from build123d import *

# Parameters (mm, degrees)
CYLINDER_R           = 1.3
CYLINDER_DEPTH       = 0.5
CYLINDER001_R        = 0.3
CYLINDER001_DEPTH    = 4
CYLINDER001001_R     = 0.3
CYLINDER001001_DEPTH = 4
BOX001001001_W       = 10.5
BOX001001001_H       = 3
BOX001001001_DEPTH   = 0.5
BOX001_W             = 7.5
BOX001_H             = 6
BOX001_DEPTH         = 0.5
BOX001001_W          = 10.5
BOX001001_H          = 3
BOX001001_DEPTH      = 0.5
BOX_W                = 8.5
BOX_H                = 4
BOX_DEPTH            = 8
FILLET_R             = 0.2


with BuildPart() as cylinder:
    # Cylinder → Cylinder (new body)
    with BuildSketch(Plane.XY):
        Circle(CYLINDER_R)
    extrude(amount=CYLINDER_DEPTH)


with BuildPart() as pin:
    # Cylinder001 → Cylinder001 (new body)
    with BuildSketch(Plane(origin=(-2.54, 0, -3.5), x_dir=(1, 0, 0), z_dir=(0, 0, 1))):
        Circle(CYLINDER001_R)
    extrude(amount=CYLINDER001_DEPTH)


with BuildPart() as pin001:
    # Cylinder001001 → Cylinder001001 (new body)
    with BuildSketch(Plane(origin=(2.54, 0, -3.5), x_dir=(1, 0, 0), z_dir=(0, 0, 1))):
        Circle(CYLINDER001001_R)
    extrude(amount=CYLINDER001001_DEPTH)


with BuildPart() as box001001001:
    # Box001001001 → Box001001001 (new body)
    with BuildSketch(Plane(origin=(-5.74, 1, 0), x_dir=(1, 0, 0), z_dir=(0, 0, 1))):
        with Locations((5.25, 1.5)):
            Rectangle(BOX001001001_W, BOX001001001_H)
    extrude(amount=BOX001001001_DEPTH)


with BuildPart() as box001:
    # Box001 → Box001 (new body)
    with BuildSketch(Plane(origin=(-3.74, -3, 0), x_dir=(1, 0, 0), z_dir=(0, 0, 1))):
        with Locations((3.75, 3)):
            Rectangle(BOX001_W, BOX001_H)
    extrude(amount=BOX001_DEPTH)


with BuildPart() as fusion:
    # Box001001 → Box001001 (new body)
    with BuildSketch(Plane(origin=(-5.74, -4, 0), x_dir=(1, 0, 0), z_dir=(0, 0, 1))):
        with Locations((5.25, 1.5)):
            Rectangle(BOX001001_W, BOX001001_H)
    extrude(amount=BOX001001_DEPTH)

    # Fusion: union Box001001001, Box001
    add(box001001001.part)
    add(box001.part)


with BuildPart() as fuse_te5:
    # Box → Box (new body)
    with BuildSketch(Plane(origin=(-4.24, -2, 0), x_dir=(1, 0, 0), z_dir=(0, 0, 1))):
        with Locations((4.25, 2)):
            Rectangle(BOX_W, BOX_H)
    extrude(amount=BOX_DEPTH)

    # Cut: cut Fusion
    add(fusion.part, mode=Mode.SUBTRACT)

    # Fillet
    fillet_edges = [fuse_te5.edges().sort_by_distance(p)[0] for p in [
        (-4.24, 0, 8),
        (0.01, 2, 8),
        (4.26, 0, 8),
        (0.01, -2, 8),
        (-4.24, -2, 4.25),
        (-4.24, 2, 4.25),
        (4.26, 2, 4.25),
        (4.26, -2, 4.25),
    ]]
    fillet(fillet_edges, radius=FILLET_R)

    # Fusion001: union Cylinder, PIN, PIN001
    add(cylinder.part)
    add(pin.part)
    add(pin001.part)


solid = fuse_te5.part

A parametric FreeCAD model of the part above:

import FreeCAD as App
import Part
import Sketcher
from FreeCAD import Vector


def edges_at(feature, points):
    """Names of the edges that pass closest to the given points."""
    edges = feature.Shape.Edges
    near = lambda p: min(range(len(edges)), key=lambda i: edges[i].distToShape(Part.Vertex(*p))[0])
    return sorted({f"Edge{near(p) + 1}" for p in points})

doc = App.newDocument("Part")
body = doc.addObject("PartDesign::Body", "Body")

sketch1 = body.newObject("Sketcher::SketchObject", "Sketch")
sketch1.AttachmentSupport = (doc.getObject("XY_Plane"), [""])
sketch1.MapMode = "FlatFace"
sketch1.addGeometry(Part.Circle(Vector(0, 0, 0), Vector(0, 0, 1), 1.3), False)
sketch1.addConstraint([
    Sketcher.Constraint("Coincident", 0, 3, -1, 1),
    Sketcher.Constraint("Diameter", 0, 2.6),
])
pad1 = body.newObject("PartDesign::Pad", "Pad")
pad1.Profile = sketch1
pad1.Length = 0.5
body2 = doc.addObject("PartDesign::Body", "Body001")

sketch2 = body2.newObject("Sketcher::SketchObject", "Sketch001")
sketch2.AttachmentSupport = (doc.getObject("XY_Plane001"), [""])
sketch2.MapMode = "FlatFace"
sketch2.AttachmentOffset = App.Placement(Vector(0, 0, -3.5), App.Rotation())
sketch2.addGeometry(Part.Circle(Vector(-2.54, 0, 0), Vector(0, 0, 1), 0.3), False)
sketch2.addConstraint([
    Sketcher.Constraint("PointOnObject", 0, 3, -1),
    Sketcher.Constraint("Diameter", 0, 0.6),
    Sketcher.Constraint("DistanceX", 0, 3, -1, 1, 2.54),
])
pad2 = body2.newObject("PartDesign::Pad", "Pad001")
pad2.Profile = sketch2
pad2.Length = 4
body3 = doc.addObject("PartDesign::Body", "Body002")

sketch3 = body3.newObject("Sketcher::SketchObject", "Sketch002")
sketch3.AttachmentSupport = (doc.getObject("XY_Plane002"), [""])
sketch3.MapMode = "FlatFace"
sketch3.AttachmentOffset = App.Placement(Vector(0, 0, -3.5), App.Rotation())
sketch3.addGeometry(Part.Circle(Vector(2.54, 0, 0), Vector(0, 0, 1), 0.3), False)
sketch3.addConstraint([
    Sketcher.Constraint("PointOnObject", 0, 3, -1),
    Sketcher.Constraint("Diameter", 0, 0.6),
    Sketcher.Constraint("DistanceX", -1, 1, 0, 3, 2.54),
])
pad3 = body3.newObject("PartDesign::Pad", "Pad002")
pad3.Profile = sketch3
pad3.Length = 4
body4 = doc.addObject("PartDesign::Body", "Body003")

sketch4 = body4.newObject("Sketcher::SketchObject", "Sketch003")
sketch4.AttachmentSupport = (doc.getObject("XY_Plane003"), [""])
sketch4.MapMode = "FlatFace"
sketch4.addGeometry([
    Part.LineSegment(Vector(-5.7, 4, 0), Vector(-5.7, 1, 0)),
    Part.LineSegment(Vector(-5.7, 1, 0), Vector(4.8, 1, 0)),
    Part.LineSegment(Vector(4.8, 1, 0), Vector(4.8, 4, 0)),
    Part.LineSegment(Vector(4.8, 4, 0), Vector(-5.7, 4, 0)),
], False)
sketch4.addConstraint([
    Sketcher.Constraint("Coincident", 0, 2, 1, 1),
    Sketcher.Constraint("Coincident", 1, 2, 2, 1),
    Sketcher.Constraint("Coincident", 2, 2, 3, 1),
    Sketcher.Constraint("Coincident", 3, 2, 0, 1),
    Sketcher.Constraint("Vertical", 0),
    Sketcher.Constraint("Horizontal", 1),
    Sketcher.Constraint("Vertical", 2),
    Sketcher.Constraint("Horizontal", 3),
    Sketcher.Constraint("DistanceY", 0, 2, 0, 1, 3.0),
    Sketcher.Constraint("DistanceX", 1, 1, 1, 2, 10.5),
    Sketcher.Constraint("DistanceY", -1, 1, 0, 2, 1.0),
    Sketcher.Constraint("DistanceX", 0, 2, -1, 1, 5.74),
])
pad4 = body4.newObject("PartDesign::Pad", "Pad003")
pad4.Profile = sketch4
pad4.Length = 0.5
body5 = doc.addObject("PartDesign::Body", "Body004")

sketch5 = body5.newObject("Sketcher::SketchObject", "Sketch004")
sketch5.AttachmentSupport = (doc.getObject("XY_Plane004"), [""])
sketch5.MapMode = "FlatFace"
sketch5.addGeometry([
    Part.LineSegment(Vector(-4, 3, 0), Vector(-4, -3, 0)),
    Part.LineSegment(Vector(-4, -3, 0), Vector(4, -3, 0)),
    Part.LineSegment(Vector(4, -3, 0), Vector(4, 3, 0)),
    Part.LineSegment(Vector(4, 3, 0), Vector(-4, 3, 0)),
], False)
sketch5.addConstraint([
    Sketcher.Constraint("Coincident", 0, 2, 1, 1),
    Sketcher.Constraint("Coincident", 1, 2, 2, 1),
    Sketcher.Constraint("Coincident", 2, 2, 3, 1),
    Sketcher.Constraint("Coincident", 3, 2, 0, 1),
    Sketcher.Constraint("Vertical", 0),
    Sketcher.Constraint("Horizontal", 1),
    Sketcher.Constraint("Vertical", 2),
    Sketcher.Constraint("Horizontal", 3),
    Sketcher.Constraint("DistanceY", 0, 2, 0, 1, 6.0),
    Sketcher.Constraint("DistanceX", 1, 1, 1, 2, 7.5),
    Sketcher.Constraint("DistanceY", 0, 2, -1, 1, 3.0),
    Sketcher.Constraint("DistanceX", 0, 2, -1, 1, 3.74),
])
pad5 = body5.newObject("PartDesign::Pad", "Pad004")
pad5.Profile = sketch5
pad5.Length = 0.5
body6 = doc.addObject("PartDesign::Body", "Body005")
body6.AllowCompound = True

sketch6 = body6.newObject("Sketcher::SketchObject", "Sketch005")
sketch6.AttachmentSupport = (doc.getObject("XY_Plane005"), [""])
sketch6.MapMode = "FlatFace"
sketch6.addGeometry([
    Part.LineSegment(Vector(-5.7, -1, 0), Vector(-5.7, -4, 0)),
    Part.LineSegment(Vector(-5.7, -4, 0), Vector(4.8, -4, 0)),
    Part.LineSegment(Vector(4.8, -4, 0), Vector(4.8, -1, 0)),
    Part.LineSegment(Vector(4.8, -1, 0), Vector(-5.7, -1, 0)),
], False)
sketch6.addConstraint([
    Sketcher.Constraint("Coincident", 0, 2, 1, 1),
    Sketcher.Constraint("Coincident", 1, 2, 2, 1),
    Sketcher.Constraint("Coincident", 2, 2, 3, 1),
    Sketcher.Constraint("Coincident", 3, 2, 0, 1),
    Sketcher.Constraint("Vertical", 0),
    Sketcher.Constraint("Horizontal", 1),
    Sketcher.Constraint("Vertical", 2),
    Sketcher.Constraint("Horizontal", 3),
    Sketcher.Constraint("DistanceY", 0, 2, 0, 1, 3.0),
    Sketcher.Constraint("DistanceX", 1, 1, 1, 2, 10.5),
    Sketcher.Constraint("DistanceY", 0, 2, -1, 1, 4.0),
    Sketcher.Constraint("DistanceX", 0, 2, -1, 1, 5.74),
])
pad6 = body6.newObject("PartDesign::Pad", "Pad005")
pad6.Profile = sketch6
pad6.Length = 0.5
doc.recompute()

boolean = body6.newObject("PartDesign::Boolean", "Boolean")
boolean.Type = "Fuse"
boolean.addObjects([body4])
doc.recompute()

boolean2 = body6.newObject("PartDesign::Boolean", "Boolean001")
boolean2.Type = "Fuse"
boolean2.addObjects([body5])
body7 = doc.addObject("PartDesign::Body", "Body006")

sketch7 = body7.newObject("Sketcher::SketchObject", "Sketch006")
sketch7.AttachmentSupport = (doc.getObject("XY_Plane006"), [""])
sketch7.MapMode = "FlatFace"
sketch7.addGeometry([
    Part.LineSegment(Vector(-4.2, 2, 0), Vector(-4.2, -2, 0)),
    Part.LineSegment(Vector(-4.2, -2, 0), Vector(4.3, -2, 0)),
    Part.LineSegment(Vector(4.3, -2, 0), Vector(4.3, 2, 0)),
    Part.LineSegment(Vector(4.3, 2, 0), Vector(-4.2, 2, 0)),
], False)
sketch7.addConstraint([
    Sketcher.Constraint("Coincident", 0, 2, 1, 1),
    Sketcher.Constraint("Coincident", 1, 2, 2, 1),
    Sketcher.Constraint("Coincident", 2, 2, 3, 1),
    Sketcher.Constraint("Coincident", 3, 2, 0, 1),
    Sketcher.Constraint("Vertical", 0),
    Sketcher.Constraint("Horizontal", 1),
    Sketcher.Constraint("Vertical", 2),
    Sketcher.Constraint("Horizontal", 3),
    Sketcher.Constraint("DistanceY", 0, 2, 0, 1, 4.0),
    Sketcher.Constraint("DistanceX", 1, 1, 1, 2, 8.5),
    Sketcher.Constraint("DistanceY", 0, 2, -1, 1, 2.0),
    Sketcher.Constraint("DistanceX", 0, 2, -1, 1, 4.24),
])
pad7 = body7.newObject("PartDesign::Pad", "Pad006")
pad7.Profile = sketch7
pad7.Length = 8
doc.recompute()

boolean3 = body7.newObject("PartDesign::Boolean", "Boolean002")
boolean3.Type = "Cut"
boolean3.addObjects([body6])
doc.recompute()

fillet = body7.newObject("PartDesign::Fillet", "Fillet")
fillet.Base = (boolean3, edges_at(boolean3, [
    (-4.24, 0, 8),
    (0.01, 2, 8),
    (4.26, 0, 8),
    (0.01, -2, 8),
    (-4.24, -2, 4.25),
    (-4.24, 2, 4.25),
    (4.26, 2, 4.25),
    (4.26, -2, 4.25),
]))
fillet.Radius = 0.2
doc.recompute()

boolean4 = body7.newObject("PartDesign::Boolean", "Boolean003")
boolean4.Type = "Fuse"
boolean4.addObjects([body])
doc.recompute()

boolean5 = body7.newObject("PartDesign::Boolean", "Boolean004")
boolean5.Type = "Fuse"
boolean5.addObjects([body2])
doc.recompute()

boolean6 = body7.newObject("PartDesign::Boolean", "Boolean005")
boolean6.Type = "Fuse"
boolean6.addObjects([body3])

doc.recompute()
